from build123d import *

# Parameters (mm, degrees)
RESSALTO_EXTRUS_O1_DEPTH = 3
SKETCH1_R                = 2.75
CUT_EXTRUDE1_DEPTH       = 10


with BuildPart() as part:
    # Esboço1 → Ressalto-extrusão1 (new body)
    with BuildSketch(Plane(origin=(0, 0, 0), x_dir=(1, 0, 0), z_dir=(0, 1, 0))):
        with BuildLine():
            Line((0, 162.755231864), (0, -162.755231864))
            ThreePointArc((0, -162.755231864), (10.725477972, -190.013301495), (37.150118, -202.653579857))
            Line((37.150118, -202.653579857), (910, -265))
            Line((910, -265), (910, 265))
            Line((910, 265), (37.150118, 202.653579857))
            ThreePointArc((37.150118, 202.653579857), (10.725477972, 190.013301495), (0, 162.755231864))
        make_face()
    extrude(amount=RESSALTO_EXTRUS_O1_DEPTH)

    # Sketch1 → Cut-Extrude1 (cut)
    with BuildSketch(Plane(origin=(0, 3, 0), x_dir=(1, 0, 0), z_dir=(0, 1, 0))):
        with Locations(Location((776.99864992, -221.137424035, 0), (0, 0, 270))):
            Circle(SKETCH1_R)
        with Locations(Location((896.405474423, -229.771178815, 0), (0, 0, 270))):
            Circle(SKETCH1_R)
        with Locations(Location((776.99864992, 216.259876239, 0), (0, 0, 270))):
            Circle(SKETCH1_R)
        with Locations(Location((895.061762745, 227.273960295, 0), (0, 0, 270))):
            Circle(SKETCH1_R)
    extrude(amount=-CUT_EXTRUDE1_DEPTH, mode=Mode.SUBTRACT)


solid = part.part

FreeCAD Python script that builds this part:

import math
import FreeCAD as App
import Part
import Sketcher

V = App.Vector

doc = App.newDocument("Part")
body = doc.addObject("PartDesign::Body", "Body")

# Sketch on XZ plane
sketch1 = body.newObject("Sketcher::SketchObject", "Sketch")
sketch1.AttachmentSupport = (doc.getObject("XZ_Plane"), [""])
sketch1.MapMode = "FlatFace"
sketch1.addGeometry([
    Part.LineSegment(V(0, -163, 0), V(0, 163, 0)),  # 0
    Part.ArcOfCircle(Part.Circle(V(40, 163, 0), V(0, 0, 1), 40), math.radians(94), math.radians(180)),  # 1
    Part.LineSegment(V(37, 203, 0), V(910, 265, 0)),  # 2
    Part.LineSegment(V(910, 265, 0), V(910, -265, 0)),  # 3
    Part.LineSegment(V(910, -265, 0), V(37, -203, 0)),  # 4
    Part.ArcOfCircle(Part.Circle(V(40, -163, 0), V(0, 0, 1), 40), math.radians(-180), math.radians(-94)),  # 5
], False)
sketch1.addConstraint([
    Sketcher.Constraint("Tangent", 0, 2, 1, 2),
    Sketcher.Constraint("Tangent", 1, 1, 2, 1),
    Sketcher.Constraint("Coincident", 2, 2, 3, 1),
    Sketcher.Constraint("Coincident", 3, 2, 4, 1),
    Sketcher.Constraint("Tangent", 4, 2, 5, 2),
    Sketcher.Constraint("Tangent", 5, 1, 0, 1),
    Sketcher.Constraint("Vertical", 0),
    Sketcher.Constraint("Vertical", 3),
    Sketcher.Constraint("Equal", 1, 5),
    Sketcher.Constraint("Symmetric", 0, 2, 5, 1, -1, 1),
    Sketcher.Constraint("Equal", 2, 4),
    Sketcher.Constraint("Radius", 1, 40.0),
    Sketcher.Constraint("DistanceY", 3, 2, 3, 1, 530.0),
    Sketcher.Constraint("DistanceX", -1, 1, 2, 2, 910.0),
    Sketcher.Constraint("DistanceY", 0, 1, 0, 2, 325.510464),
])
pad1 = body.newObject("PartDesign::Pad", "Pad")
pad1.Profile = sketch1
pad1.Length = 3
pad1.Reversed = True

# Sketch on XZ plane
sketch2 = body.newObject("Sketcher::SketchObject", "Sketch001")
sketch2.AttachmentSupport = (doc.getObject("XZ_Plane"), [""])
sketch2.MapMode = "FlatFace"
sketch2.AttachmentOffset = App.Placement(V(0, 0, -3), App.Rotation())
sketch2.addGeometry([
    Part.Circle(V(777, 221.1, 0), V(0, 0, 1), 2.8),
    Part.Circle(V(896.4, 229.8, 0), V(0, 0, 1), 2.8),
    Part.Circle(V(777, -216.3, 0), V(0, 0, 1), 2.8),
    Part.Circle(V(895.1, -227.3, 0), V(0, 0, 1), 2.8),
], False)
sketch2.addConstraint([
    Sketcher.Constraint("Equal", 0, 1),
    Sketcher.Constraint("Equal", 1, 2),
    Sketcher.Constraint("Equal", 2, 3),
    Sketcher.Constraint("Vertical", 0, 3, 2, 3),
    Sketcher.Constraint("Diameter", 0, 5.5),
    Sketcher.Constraint("DistanceY", 2, 3, 0, 3, 437.3973),
    Sketcher.Constraint("DistanceX", -1, 1, 0, 3, 776.99865),
    Sketcher.Constraint("DistanceY", -1, 1, 1, 3, 229.771179),
    Sketcher.Constraint("DistanceY", 3, 3, -1, 1, 227.27396),
    Sketcher.Constraint("DistanceX", 3, 3, 1, 3, 1.343712),
    Sketcher.Constraint("DistanceY", -1, 1, 0, 3, 221.137424),
    Sketcher.Constraint("DistanceX", -1, 1, 1, 3, 896.405474),
])
pocket1 = body.newObject("PartDesign::Pocket", "Pocket")
pocket1.Profile = sketch2
pocket1.Length = 10
pocket1.Reversed = True

doc.recompute()
